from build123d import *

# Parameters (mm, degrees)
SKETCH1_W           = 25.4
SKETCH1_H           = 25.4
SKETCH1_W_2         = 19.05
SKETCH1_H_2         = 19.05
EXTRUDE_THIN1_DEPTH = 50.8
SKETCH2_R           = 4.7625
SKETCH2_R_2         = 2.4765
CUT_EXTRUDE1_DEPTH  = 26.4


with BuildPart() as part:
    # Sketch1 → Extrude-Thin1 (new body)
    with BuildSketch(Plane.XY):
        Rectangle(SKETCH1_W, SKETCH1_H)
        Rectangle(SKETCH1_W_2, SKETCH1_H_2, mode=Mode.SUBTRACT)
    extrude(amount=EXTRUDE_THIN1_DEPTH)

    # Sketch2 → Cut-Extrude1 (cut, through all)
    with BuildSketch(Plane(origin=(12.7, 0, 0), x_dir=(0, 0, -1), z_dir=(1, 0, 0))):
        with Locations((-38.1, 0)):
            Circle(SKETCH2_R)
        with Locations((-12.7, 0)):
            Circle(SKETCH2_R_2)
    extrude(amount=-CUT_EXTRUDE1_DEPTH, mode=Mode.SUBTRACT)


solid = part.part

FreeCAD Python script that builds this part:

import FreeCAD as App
import Part
import Sketcher
Q = App.Units.Quantity


def add_polygon(sketch, points):
    """Adds a closed chain of lines whose ends are joined by coincident constraints."""
    first, n = sketch.GeometryCount, len(points)
    for a, b in zip(points, points[1:] + points[:1]):
        sketch.addGeometry(Part.LineSegment(App.Vector(*a, 0), App.Vector(*b, 0)), False)
    for i in range(n):
        sketch.addConstraint(Sketcher.Constraint("Coincident", first + i, 2, first + (i + 1) % n, 1))

doc = App.newDocument("Part")
params = doc.addObject("Spreadsheet::Sheet", "Params")
for row, (alias, value) in enumerate([
    ("sketch1_width", "1 in"),
    ("sketch1_width2", "0.75 in"),
    ("pad1_length", "2 in"),
    ("sketch2_diameter", "0.375 in"),
    ("sketch2_diameter2", "0.195 in"),
], start=1):
    params.set(f"A{row}", alias)
    params.set(f"B{row}", "=" + value)
    params.setAlias(f"B{row}", alias)

body = doc.addObject("PartDesign::Body", "Body")

sketch1 = body.newObject("Sketcher::SketchObject", "Sketch")
sketch1.AttachmentSupport = (doc.getObject("XY_Plane"), [""])
sketch1.MapMode = "FlatFace"
add_polygon(sketch1, [(-13, 13), (-13, -13), (13, -13), (13, 13)])
add_polygon(sketch1, [(10, -10), (-10, -10), (-10, 10), (10, 10)])
sketch1.addConstraint(Sketcher.Constraint("Vertical", 0))
sketch1.addConstraint(Sketcher.Constraint("Horizontal", 1))
sketch1.addConstraint(Sketcher.Constraint("Vertical", 2))
sketch1.addConstraint(Sketcher.Constraint("Horizontal", 3))
sketch1.addConstraint(Sketcher.Constraint("Horizontal", 4))
sketch1.addConstraint(Sketcher.Constraint("Vertical", 5))
sketch1.addConstraint(Sketcher.Constraint("Horizontal", 6))
sketch1.addConstraint(Sketcher.Constraint("Vertical", 7))
sketch1.addConstraint(Sketcher.Constraint("Symmetric", 0, 2, 2, 2, -1, 1))
sketch1.addConstraint(Sketcher.Constraint("Symmetric", 4, 2, 6, 2, -1, 1))
sketch1.addConstraint(Sketcher.Constraint("Equal", 3, 0))
sketch1.addConstraint(Sketcher.Constraint("Equal", 6, 5))
sketch1.addConstraint(Sketcher.Constraint("DistanceX", 1, 1, 1, 2, Q("1 in")))
sketch1.addConstraint(Sketcher.Constraint("DistanceX", 4, 2, 4, 1, Q("0.75 in")))
sketch1.setExpression("Constraints[20]", "Params.sketch1_width")
sketch1.setExpression("Constraints[21]", "Params.sketch1_width2")
pad1 = body.newObject("PartDesign::Pad", "Pad")
pad1.Profile = sketch1
pad1.setExpression("Length", "Params.pad1_length")

sketch2 = body.newObject("Sketcher::SketchObject", "Sketch001")
sketch2.AttachmentSupport = (doc.getObject("YZ_Plane"), [""])
sketch2.MapMode = "FlatFace"
sketch2.AttachmentOffset = App.Placement(App.Vector(0, 0, 0.5 * 25.4), App.Rotation())
sketch2.addGeometry(Part.Circle(App.Vector(0, 38.1, 0), App.Vector(0, 0, 1), 4.8), False)
sketch2.addGeometry(Part.Circle(App.Vector(0, 12.7, 0), App.Vector(0, 0, 1), 2.5), False)
sketch2.addConstraint(Sketcher.Constraint("PointOnObject", 0, 3, -2))
sketch2.addConstraint(Sketcher.Constraint("PointOnObject", 1, 3, -2))
sketch2.addConstraint(Sketcher.Constraint("Diameter", 0, Q("0.375 in")))
sketch2.addConstraint(Sketcher.Constraint("Diameter", 1, Q("0.195 in")))
sketch2.addConstraint(Sketcher.Constraint("DistanceY", 1, 3, 0, 3, Q("1 in")))
sketch2.addConstraint(Sketcher.Constraint("DistanceY", -1, 1, 0, 3, Q("1.5 in")))
sketch2.setExpression("Constraints[2]", "Params.sketch2_diameter")
sketch2.setExpression("Constraints[3]", "Params.sketch2_diameter2")
pocket1 = body.newObject("PartDesign::Pocket", "Pocket")
pocket1.Profile = sketch2
pocket1.Type = "ThroughAll"

doc.recompute()
